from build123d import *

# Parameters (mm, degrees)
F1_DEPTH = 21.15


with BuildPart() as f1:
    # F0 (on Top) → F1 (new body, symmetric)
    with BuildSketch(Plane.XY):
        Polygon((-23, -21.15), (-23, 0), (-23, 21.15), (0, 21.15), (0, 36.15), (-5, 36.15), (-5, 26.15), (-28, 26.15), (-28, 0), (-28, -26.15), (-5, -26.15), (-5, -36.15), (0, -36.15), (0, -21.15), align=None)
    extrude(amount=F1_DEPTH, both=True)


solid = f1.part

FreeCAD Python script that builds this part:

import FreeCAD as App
import Part
import Sketcher

doc = App.newDocument("Part")
params = doc.addObject("Spreadsheet::Sheet", "Params")
for row, (alias, value) in enumerate([
    ("sketch1_width", "23 mm"),
    ("sketch1_width2", "5 mm"),
    ("sketch1_height", "15 mm"),
    ("sketch1_height2", "10 mm"),
    ("sketch1_height3", "42.3 mm"),
    ("pad1_length", "42.3 mm"),
], start=1):
    params.set(f"A{row}", alias)
    params.set(f"B{row}", "=" + value)
    params.setAlias(f"B{row}", alias)

body = doc.addObject("PartDesign::Body", "Body")

# Sketch on XY plane
sketch1 = doc.addObject("Sketcher::SketchObject", "Sketch")
body.addObject(sketch1)
sketch1.AttachmentSupport = (doc.XY_Plane, [""])
sketch1.MapMode = "FlatFace"
sketch1.addGeometry([
    Part.LineSegment(App.Vector(-23, -21, 0), App.Vector(-23, 21, 0)),  # 0
    Part.LineSegment(App.Vector(-23, 21, 0), App.Vector(0, 21, 0)),  # 1
    Part.LineSegment(App.Vector(0, 21, 0), App.Vector(0, 36, 0)),  # 2
    Part.LineSegment(App.Vector(0, 36, 0), App.Vector(-5, 36, 0)),  # 3
    Part.LineSegment(App.Vector(-5, 36, 0), App.Vector(-5, 26, 0)),  # 4
    Part.LineSegment(App.Vector(-5, 26, 0), App.Vector(-28, 26, 0)),  # 5
    Part.LineSegment(App.Vector(-28, 26, 0), App.Vector(-28, -26, 0)),  # 6
    Part.LineSegment(App.Vector(-28, -26, 0), App.Vector(-5, -26, 0)),  # 7
    Part.LineSegment(App.Vector(-5, -26, 0), App.Vector(-5, -36, 0)),  # 8
    Part.LineSegment(App.Vector(-5, -36, 0), App.Vector(0, -36, 0)),  # 9
    Part.LineSegment(App.Vector(0, -36, 0), App.Vector(0, -21, 0)),  # 10
    Part.LineSegment(App.Vector(0, -21, 0), App.Vector(-23, -21, 0)),  # 11
], False)
sketch1.addConstraint([
    Sketcher.Constraint("Coincident", 0, 2, 1, 1),
    Sketcher.Constraint("Coincident", 1, 2, 2, 1),
    Sketcher.Constraint("Coincident", 2, 2, 3, 1),
    Sketcher.Constraint("Coincident", 3, 2, 4, 1),
    Sketcher.Constraint("Coincident", 4, 2, 5, 1),
    Sketcher.Constraint("Coincident", 5, 2, 6, 1),
    Sketcher.Constraint("Coincident", 6, 2, 7, 1),
    Sketcher.Constraint("Coincident", 7, 2, 8, 1),
    Sketcher.Constraint("Coincident", 8, 2, 9, 1),
    Sketcher.Constraint("Coincident", 9, 2, 10, 1),
    Sketcher.Constraint("Coincident", 10, 2, 11, 1),
    Sketcher.Constraint("Coincident", 11, 2, 0, 1),
    Sketcher.Constraint("Vertical", 0),
    Sketcher.Constraint("Horizontal", 1),
    Sketcher.Constraint("Vertical", 2),
    Sketcher.Constraint("Horizontal", 3),
    Sketcher.Constraint("Vertical", 4),
    Sketcher.Constraint("Horizontal", 5),
    Sketcher.Constraint("Vertical", 6),
    Sketcher.Constraint("Horizontal", 7),
    Sketcher.Constraint("Vertical", 8),
    Sketcher.Constraint("Horizontal", 9),
    Sketcher.Constraint("Vertical", 10),
    Sketcher.Constraint("Horizontal", 11),
    Sketcher.Constraint("Symmetric", 2, 2, 9, 2, -1, 1),
    Sketcher.Constraint("Symmetric", 4, 2, 7, 2, -1),
    Sketcher.Constraint("Symmetric", 1, 2, 10, 2, -1),
    Sketcher.Constraint("Equal", 1, 5),
    Sketcher.Constraint("DistanceX", 1, 1, 1, 2, 23.0),
    Sketcher.Constraint("DistanceX", 3, 2, 3, 1, 5.0),
    Sketcher.Constraint("DistanceY", 2, 1, 2, 2, 15.0),
    Sketcher.Constraint("DistanceY", 4, 2, 4, 1, 10.0),
    Sketcher.Constraint("DistanceY", 0, 1, 0, 2, 42.3),
])
sketch1.setExpression("Constraints[28]", "Params.sketch1_width")
sketch1.setExpression("Constraints[29]", "Params.sketch1_width2")
sketch1.setExpression("Constraints[30]", "Params.sketch1_height")
sketch1.setExpression("Constraints[31]", "Params.sketch1_height2")
sketch1.setExpression("Constraints[32]", "Params.sketch1_height3")
pad1 = doc.addObject("PartDesign::Pad", "Pad")
body.addObject(pad1)
pad1.Profile = sketch1
pad1.setExpression("Length", "Params.pad1_length")
pad1.Midplane = True

doc.recompute()
